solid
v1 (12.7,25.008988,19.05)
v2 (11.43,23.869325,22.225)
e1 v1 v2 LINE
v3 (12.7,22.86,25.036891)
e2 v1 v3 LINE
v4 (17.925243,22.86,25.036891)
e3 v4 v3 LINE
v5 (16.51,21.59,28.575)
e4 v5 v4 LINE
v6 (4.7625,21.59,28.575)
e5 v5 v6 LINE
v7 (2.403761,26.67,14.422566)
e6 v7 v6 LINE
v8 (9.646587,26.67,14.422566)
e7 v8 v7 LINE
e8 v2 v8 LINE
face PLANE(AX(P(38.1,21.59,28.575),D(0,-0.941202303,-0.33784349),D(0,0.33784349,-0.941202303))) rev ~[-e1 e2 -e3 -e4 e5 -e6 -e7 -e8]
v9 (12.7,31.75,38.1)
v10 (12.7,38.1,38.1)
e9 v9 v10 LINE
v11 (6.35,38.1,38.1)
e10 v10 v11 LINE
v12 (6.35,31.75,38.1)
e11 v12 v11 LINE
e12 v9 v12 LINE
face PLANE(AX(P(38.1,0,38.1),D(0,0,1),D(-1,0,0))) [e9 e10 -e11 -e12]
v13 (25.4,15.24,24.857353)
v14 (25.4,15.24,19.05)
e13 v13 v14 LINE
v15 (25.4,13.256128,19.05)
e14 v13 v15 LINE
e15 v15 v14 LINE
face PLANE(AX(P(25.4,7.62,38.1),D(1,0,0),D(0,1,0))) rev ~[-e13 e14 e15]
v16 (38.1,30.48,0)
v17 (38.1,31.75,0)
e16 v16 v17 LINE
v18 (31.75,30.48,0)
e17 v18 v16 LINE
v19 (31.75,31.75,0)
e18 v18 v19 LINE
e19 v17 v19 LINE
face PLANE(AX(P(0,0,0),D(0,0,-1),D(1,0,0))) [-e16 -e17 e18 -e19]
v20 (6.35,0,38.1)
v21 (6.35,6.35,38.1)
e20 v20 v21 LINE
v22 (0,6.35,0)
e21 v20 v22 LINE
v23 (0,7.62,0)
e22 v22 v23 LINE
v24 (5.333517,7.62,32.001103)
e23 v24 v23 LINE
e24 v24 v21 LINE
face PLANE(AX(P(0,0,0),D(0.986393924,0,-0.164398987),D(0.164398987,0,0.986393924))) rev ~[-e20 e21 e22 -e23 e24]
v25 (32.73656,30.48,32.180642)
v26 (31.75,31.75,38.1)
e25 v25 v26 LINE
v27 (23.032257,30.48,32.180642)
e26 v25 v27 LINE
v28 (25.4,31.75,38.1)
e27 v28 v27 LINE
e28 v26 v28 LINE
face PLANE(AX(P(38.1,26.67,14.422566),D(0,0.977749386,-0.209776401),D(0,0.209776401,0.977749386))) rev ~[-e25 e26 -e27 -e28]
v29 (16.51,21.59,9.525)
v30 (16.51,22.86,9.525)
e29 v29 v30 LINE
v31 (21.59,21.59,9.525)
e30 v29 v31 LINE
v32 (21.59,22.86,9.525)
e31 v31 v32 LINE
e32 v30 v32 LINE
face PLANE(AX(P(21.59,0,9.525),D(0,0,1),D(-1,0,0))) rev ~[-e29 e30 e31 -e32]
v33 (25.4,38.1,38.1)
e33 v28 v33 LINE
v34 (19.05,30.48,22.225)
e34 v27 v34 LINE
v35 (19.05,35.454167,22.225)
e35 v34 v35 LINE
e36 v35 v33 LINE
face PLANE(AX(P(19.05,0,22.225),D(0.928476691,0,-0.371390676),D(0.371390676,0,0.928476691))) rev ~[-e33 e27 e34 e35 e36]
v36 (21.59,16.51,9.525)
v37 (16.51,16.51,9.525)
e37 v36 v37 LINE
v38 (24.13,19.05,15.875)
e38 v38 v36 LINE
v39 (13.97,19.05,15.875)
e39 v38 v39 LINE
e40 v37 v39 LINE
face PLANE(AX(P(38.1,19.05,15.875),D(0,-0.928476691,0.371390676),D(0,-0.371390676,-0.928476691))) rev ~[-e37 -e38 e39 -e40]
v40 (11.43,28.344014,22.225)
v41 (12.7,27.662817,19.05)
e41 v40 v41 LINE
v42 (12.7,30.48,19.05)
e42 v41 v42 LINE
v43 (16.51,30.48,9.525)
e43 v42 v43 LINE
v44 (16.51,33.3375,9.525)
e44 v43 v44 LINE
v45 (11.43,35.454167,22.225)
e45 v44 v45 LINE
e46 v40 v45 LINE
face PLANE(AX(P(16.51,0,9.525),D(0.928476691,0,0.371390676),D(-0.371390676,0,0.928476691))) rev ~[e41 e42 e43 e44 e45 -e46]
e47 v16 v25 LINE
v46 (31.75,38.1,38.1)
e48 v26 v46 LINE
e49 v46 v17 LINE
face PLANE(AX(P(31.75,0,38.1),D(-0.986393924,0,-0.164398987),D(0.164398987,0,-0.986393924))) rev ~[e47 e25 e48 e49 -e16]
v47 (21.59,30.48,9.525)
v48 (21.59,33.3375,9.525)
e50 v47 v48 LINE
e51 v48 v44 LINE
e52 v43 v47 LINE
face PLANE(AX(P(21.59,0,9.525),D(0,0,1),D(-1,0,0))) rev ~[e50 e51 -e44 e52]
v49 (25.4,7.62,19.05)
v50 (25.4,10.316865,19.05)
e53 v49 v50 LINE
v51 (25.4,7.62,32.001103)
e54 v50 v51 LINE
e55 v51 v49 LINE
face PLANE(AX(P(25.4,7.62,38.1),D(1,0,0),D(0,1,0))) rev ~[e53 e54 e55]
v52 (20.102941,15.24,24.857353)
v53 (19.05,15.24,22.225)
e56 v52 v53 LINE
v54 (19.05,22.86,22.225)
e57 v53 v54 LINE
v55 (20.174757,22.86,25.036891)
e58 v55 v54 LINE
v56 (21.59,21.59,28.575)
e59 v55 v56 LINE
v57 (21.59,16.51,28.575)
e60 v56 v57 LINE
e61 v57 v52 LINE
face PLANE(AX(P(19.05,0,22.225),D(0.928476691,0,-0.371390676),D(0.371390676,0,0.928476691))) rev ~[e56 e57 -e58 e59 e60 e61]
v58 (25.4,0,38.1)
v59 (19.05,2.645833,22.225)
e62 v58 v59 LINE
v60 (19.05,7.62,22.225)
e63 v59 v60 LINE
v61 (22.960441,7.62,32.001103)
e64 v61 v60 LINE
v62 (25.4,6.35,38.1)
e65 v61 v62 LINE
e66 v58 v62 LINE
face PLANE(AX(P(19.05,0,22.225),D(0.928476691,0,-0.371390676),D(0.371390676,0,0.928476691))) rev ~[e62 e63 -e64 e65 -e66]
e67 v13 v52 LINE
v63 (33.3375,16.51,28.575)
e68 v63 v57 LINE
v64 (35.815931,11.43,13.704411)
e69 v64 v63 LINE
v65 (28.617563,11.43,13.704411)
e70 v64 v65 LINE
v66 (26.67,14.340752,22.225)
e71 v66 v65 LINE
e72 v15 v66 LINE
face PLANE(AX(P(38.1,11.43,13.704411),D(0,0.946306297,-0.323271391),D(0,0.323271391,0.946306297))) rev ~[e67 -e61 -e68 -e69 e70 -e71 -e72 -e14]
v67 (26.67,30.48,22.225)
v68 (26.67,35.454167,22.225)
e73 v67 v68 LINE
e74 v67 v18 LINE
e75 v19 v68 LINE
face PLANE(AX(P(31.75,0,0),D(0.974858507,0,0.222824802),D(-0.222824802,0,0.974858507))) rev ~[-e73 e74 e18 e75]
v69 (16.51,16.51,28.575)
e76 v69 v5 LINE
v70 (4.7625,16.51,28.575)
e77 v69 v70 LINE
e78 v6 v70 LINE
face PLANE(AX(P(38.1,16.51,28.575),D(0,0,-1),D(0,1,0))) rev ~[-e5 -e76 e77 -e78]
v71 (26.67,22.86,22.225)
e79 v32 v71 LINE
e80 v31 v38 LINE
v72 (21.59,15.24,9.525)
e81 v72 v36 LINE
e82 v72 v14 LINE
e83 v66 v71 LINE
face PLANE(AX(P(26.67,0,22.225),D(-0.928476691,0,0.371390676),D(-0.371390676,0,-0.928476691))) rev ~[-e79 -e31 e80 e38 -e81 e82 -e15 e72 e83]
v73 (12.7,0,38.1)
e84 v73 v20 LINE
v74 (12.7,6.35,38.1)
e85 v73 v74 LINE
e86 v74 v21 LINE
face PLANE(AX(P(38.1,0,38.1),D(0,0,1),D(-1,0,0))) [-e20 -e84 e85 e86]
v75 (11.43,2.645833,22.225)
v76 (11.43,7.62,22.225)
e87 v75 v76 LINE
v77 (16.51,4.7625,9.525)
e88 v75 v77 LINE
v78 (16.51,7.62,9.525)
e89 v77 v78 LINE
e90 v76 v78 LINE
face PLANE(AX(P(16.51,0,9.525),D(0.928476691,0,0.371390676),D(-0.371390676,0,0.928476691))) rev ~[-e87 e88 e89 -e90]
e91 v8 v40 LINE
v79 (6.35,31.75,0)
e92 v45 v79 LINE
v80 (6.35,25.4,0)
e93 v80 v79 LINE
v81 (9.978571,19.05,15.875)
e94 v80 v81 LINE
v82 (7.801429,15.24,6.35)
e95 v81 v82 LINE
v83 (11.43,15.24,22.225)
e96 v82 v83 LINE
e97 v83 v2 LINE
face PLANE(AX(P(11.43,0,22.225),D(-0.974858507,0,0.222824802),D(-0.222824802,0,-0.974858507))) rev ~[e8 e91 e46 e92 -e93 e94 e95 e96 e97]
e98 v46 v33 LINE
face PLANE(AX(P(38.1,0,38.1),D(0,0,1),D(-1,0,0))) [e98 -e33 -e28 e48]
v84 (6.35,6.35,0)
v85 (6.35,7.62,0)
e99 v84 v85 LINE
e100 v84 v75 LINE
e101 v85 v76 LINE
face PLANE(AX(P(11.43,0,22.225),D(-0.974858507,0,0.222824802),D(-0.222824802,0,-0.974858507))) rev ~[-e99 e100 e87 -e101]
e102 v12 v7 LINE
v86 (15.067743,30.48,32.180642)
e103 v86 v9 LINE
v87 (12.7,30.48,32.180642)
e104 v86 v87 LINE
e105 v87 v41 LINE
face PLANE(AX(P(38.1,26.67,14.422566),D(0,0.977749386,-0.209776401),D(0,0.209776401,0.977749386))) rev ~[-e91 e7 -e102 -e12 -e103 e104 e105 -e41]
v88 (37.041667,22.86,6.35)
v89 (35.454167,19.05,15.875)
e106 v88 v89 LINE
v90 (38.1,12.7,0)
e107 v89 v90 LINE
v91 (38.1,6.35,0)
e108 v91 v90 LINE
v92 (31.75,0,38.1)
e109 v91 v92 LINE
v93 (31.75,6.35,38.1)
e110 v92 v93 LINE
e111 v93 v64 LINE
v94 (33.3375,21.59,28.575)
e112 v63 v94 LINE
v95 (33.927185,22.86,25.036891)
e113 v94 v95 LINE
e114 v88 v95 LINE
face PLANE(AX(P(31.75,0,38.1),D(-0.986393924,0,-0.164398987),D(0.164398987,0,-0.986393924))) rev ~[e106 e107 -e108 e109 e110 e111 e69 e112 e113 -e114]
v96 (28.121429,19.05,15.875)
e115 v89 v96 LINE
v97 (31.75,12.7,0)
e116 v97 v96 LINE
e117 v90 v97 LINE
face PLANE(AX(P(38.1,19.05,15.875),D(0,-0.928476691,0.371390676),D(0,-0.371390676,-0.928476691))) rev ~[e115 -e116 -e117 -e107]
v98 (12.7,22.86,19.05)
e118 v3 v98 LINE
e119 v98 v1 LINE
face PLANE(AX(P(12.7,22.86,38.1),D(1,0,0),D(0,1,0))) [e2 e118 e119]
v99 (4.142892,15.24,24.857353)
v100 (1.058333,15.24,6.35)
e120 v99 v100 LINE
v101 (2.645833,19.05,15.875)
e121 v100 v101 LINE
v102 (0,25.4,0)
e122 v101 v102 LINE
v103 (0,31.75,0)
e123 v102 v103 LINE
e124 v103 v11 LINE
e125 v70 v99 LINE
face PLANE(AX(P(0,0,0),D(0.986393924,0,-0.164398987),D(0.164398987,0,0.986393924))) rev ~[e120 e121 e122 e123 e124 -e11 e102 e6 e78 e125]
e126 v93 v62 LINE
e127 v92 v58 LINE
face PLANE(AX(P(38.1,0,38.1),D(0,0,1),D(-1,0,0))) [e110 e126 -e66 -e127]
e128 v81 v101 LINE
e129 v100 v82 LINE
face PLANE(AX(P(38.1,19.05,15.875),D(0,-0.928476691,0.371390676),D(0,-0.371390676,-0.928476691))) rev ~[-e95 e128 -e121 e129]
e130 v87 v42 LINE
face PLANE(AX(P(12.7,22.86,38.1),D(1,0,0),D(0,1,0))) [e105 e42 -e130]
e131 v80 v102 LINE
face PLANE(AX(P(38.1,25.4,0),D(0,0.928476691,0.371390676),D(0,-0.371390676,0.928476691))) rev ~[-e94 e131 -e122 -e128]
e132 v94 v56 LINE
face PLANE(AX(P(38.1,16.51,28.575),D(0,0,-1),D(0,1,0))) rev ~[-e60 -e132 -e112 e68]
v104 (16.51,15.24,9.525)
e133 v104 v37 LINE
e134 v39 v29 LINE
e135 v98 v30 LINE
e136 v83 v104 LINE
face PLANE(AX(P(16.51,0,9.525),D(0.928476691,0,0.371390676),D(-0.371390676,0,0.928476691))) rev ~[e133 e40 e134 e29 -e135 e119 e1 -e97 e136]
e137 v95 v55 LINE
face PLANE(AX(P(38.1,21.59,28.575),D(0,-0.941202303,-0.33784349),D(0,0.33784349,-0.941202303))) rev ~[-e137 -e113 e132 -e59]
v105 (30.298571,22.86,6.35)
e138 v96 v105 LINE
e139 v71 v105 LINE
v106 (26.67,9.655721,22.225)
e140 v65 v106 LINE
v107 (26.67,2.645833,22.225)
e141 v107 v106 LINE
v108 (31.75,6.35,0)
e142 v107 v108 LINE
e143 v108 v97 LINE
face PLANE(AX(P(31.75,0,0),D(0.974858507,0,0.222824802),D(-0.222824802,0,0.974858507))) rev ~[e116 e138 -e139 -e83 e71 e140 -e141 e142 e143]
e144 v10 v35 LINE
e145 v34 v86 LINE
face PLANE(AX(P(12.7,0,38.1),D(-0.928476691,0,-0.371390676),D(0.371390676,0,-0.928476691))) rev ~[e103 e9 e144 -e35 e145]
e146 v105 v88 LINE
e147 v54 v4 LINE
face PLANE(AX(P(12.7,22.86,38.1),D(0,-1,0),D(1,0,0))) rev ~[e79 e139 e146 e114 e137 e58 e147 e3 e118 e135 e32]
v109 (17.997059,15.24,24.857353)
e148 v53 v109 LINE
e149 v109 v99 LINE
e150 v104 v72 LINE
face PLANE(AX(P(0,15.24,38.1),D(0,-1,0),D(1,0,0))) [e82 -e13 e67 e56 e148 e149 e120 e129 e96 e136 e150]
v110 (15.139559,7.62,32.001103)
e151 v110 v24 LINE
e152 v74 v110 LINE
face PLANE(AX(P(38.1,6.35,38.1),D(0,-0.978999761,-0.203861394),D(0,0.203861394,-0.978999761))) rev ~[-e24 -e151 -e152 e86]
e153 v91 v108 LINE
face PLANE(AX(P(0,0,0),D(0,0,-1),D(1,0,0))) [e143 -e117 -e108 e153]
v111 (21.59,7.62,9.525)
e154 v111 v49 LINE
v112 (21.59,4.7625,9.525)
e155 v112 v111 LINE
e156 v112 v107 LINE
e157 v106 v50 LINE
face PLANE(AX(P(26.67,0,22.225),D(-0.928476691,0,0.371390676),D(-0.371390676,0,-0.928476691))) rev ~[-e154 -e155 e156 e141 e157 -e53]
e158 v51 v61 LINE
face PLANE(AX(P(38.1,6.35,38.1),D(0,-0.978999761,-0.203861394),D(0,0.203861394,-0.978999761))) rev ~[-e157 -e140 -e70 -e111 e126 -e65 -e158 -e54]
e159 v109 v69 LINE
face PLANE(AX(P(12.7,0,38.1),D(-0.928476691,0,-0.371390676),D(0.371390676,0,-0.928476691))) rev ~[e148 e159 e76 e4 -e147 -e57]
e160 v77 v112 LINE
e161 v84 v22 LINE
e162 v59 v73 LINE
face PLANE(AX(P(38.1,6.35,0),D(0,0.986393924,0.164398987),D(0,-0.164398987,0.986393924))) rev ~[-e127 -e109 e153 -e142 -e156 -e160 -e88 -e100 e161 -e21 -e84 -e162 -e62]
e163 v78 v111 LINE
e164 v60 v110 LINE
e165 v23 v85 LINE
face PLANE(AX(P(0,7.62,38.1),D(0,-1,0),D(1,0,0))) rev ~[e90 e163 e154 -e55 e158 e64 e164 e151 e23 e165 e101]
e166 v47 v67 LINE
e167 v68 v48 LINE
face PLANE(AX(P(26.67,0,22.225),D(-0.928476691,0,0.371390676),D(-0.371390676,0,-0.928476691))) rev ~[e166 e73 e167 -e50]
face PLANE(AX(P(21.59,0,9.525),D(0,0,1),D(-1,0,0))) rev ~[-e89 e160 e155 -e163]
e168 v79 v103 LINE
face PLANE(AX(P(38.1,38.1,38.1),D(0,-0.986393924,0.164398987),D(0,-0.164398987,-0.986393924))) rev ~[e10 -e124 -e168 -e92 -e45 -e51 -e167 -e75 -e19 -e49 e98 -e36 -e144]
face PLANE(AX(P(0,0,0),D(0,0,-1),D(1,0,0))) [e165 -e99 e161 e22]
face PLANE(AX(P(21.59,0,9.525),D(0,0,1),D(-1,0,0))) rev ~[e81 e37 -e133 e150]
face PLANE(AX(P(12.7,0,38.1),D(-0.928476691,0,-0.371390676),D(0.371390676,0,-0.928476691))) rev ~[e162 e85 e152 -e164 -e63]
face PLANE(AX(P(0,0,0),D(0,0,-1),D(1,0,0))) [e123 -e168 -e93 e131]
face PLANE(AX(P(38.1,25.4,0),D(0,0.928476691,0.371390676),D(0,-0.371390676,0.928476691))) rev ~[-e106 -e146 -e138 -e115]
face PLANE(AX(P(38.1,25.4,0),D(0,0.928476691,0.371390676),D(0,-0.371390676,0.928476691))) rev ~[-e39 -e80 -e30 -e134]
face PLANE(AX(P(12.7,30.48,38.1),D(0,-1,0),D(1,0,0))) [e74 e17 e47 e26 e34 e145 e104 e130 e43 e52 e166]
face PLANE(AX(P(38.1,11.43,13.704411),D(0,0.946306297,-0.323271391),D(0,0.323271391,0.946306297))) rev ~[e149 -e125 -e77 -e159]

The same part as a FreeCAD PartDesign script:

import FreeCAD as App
import Part
import Sketcher

V = App.Vector
Q = App.Units.Quantity

doc = App.newDocument("Part")
body = doc.addObject("PartDesign::Body", "Body")

sketch1 = body.newObject("Sketcher::SketchObject", "Sketch")
sketch1.AttachmentSupport = (doc.getObject("XZ_Plane"), [""])
sketch1.MapMode = "FlatFace"
sketch1.addGeometry([
    Part.LineSegment(V(0, 0, 0), V(38.1, 0, 0)),
    Part.LineSegment(V(38.1, 0, 0), V(38.1, 38.1, 0)),
    Part.LineSegment(V(38.1, 38.1, 0), V(0, 38.1, 0)),
    Part.LineSegment(V(0, 38.1, 0), V(0, 0, 0)),
], False)
sketch1.addConstraint([
    Sketcher.Constraint("Coincident", 0, 2, 1, 1),
    Sketcher.Constraint("Coincident", 1, 2, 2, 1),
    Sketcher.Constraint("Coincident", 2, 2, 3, 1),
    Sketcher.Constraint("Coincident", 3, 2, 0, 1),
    Sketcher.Constraint("Horizontal", 0),
    Sketcher.Constraint("Vertical", 1),
    Sketcher.Constraint("Horizontal", 2),
    Sketcher.Constraint("Vertical", 3),
    Sketcher.Constraint("Coincident", 3, 2, -1, 1),
    Sketcher.Constraint("Equal", 2, 1),
    Sketcher.Constraint("DistanceX", 0, 1, 0, 2, Q("1.5 in")),
])
pad1 = body.newObject("PartDesign::Pad", "Pad")
pad1.Profile = sketch1
pad1.Length = Q("1.5 in")
pad1.Reversed = True

sketch2 = body.newObject("Sketcher::SketchObject", "Sketch001")
sketch2.AttachmentSupport = (doc.getObject("YZ_Plane"), [""])
sketch2.MapMode = "FlatFace"
sketch2.AttachmentOffset = App.Placement(V(0, 0, 1.5 * 25.4), App.Rotation())
sketch2.addGeometry([
    Part.LineSegment(V(31.75, 38.1, 0), V(6.35, 38.1, 0)),
    Part.LineSegment(V(6.35, 38.1, 0), V(11.43, 13.704411, 0)),
    Part.LineSegment(V(11.43, 13.704411, 0), V(16.51, 28.575, 0)),
    Part.LineSegment(V(16.51, 28.575, 0), V(21.59, 28.575, 0)),
    Part.LineSegment(V(21.59, 28.575, 0), V(26.67, 14.422566, 0)),
    Part.LineSegment(V(26.67, 14.422566, 0), V(31.75, 38.1, 0)),
    Part.LineSegment(V(0, 38.1, 0), V(0, 0, 0)),
    Part.LineSegment(V(0, 0, 0), V(6.35, 0, 0)),
    Part.LineSegment(V(6.35, 0, 0), V(0, 38.1, 0)),
    Part.LineSegment(V(19.05, 15.875, 0), V(12.7, 0, 0)),
    Part.LineSegment(V(12.7, 0, 0), V(25.4, 0, 0)),
    Part.LineSegment(V(25.4, 0, 0), V(19.05, 15.875, 0)),
    Part.LineSegment(V(38.1, 0, 0), V(38.1, 38.1, 0)),
    Part.LineSegment(V(38.1, 38.1, 0), V(31.75, 0, 0)),
    Part.LineSegment(V(31.75, 0, 0), V(38.1, 0, 0)),
], False)
sketch2.addConstraint([
    Sketcher.Constraint("Coincident", 0, 2, 1, 1),
    Sketcher.Constraint("Coincident", 1, 2, 2, 1),
    Sketcher.Constraint("Coincident", 2, 2, 3, 1),
    Sketcher.Constraint("Coincident", 3, 2, 4, 1),
    Sketcher.Constraint("Coincident", 4, 2, 5, 1),
    Sketcher.Constraint("Coincident", 5, 2, 0, 1),
    Sketcher.Constraint("Coincident", 6, 2, 7, 1),
    Sketcher.Constraint("Coincident", 7, 2, 8, 1),
    Sketcher.Constraint("Coincident", 8, 2, 6, 1),
    Sketcher.Constraint("Coincident", 9, 2, 10, 1),
    Sketcher.Constraint("Coincident", 10, 2, 11, 1),
    Sketcher.Constraint("Coincident", 11, 2, 9, 1),
    Sketcher.Constraint("Coincident", 12, 2, 13, 1),
    Sketcher.Constraint("Coincident", 13, 2, 14, 1),
    Sketcher.Constraint("Coincident", 14, 2, 12, 1),
    Sketcher.Constraint("Horizontal", 0),
    Sketcher.Constraint("Horizontal", 3),
    Sketcher.Constraint("Vertical", 6),
    Sketcher.Constraint("Horizontal", 7),
    Sketcher.Constraint("Horizontal", 10),
    Sketcher.Constraint("Vertical", 12),
    Sketcher.Constraint("Horizontal", 14),
    Sketcher.Constraint("Coincident", 6, 2, -1, 1),
    Sketcher.Constraint("PointOnObject", 9, 2, -1),
    Sketcher.Constraint("PointOnObject", 13, 2, -1),
    Sketcher.Constraint("Horizontal", 5, 2, 8, 2),
    Sketcher.Constraint("Horizontal", 8, 2, 12, 2),
    Sketcher.Constraint("Vertical", 0, 2, 7, 2),
    Sketcher.Constraint("Vertical", 5, 2, 13, 2),
    Sketcher.Constraint("Equal", 7, 14),
    Sketcher.Constraint("Equal", 9, 11),
    Sketcher.Constraint("DistanceX", 0, 2, 0, 1, Q("1 in")),
    Sketcher.Constraint("DistanceX", 3, 1, 3, 2, Q("0.2 in")),
    Sketcher.Constraint("DistanceX", 10, 1, 10, 2, Q("0.5 in")),
    Sketcher.Constraint("DistanceY", 6, 2, 6, 1, Q("1.5 in")),
    Sketcher.Constraint("DistanceX", -1, 1, 10, 2, Q("1 in")),
    Sketcher.Constraint("DistanceX", 9, 2, 14, 2, Q("1 in")),
    Sketcher.Constraint("DistanceX", 0, 2, 1, 2, Q("0.2 in")),
    Sketcher.Constraint("DistanceX", 0, 2, 2, 2, Q("0.4 in")),
    Sketcher.Constraint("DistanceX", 3, 2, 4, 2, Q("0.2 in")),
    Sketcher.Constraint("DistanceY", 11, 2, 2, 2, Q("0.5 in")),
    Sketcher.Constraint("DistanceY", -1, 1, 2, 2, Q("1.125 in")),
    Sketcher.Constraint("Distance", 1, 24.918892),
    Sketcher.Constraint("Distance", 4, 15.036548),
])
pocket1 = body.newObject("PartDesign::Pocket", "Pocket")
pocket1.Profile = sketch2
pocket1.Length = Q("1.5 in")

sketch3 = body.newObject("Sketcher::SketchObject", "Sketch002")
sketch3.AttachmentSupport = (doc.getObject("XZ_Plane"), [""])
sketch3.MapMode = "FlatFace"
sketch3.addGeometry([
    Part.LineSegment(V(0, 38.1, 0), V(0, 0, 0)),
    Part.LineSegment(V(0, 0, 0), V(6.35, 38.1, 0)),
    Part.LineSegment(V(6.35, 38.1, 0), V(0, 38.1, 0)),
    Part.LineSegment(V(25.4, 38.1, 0), V(12.7, 38.1, 0)),
    Part.LineSegment(V(12.7, 38.1, 0), V(19.05, 22.225, 0)),
    Part.LineSegment(V(19.05, 22.225, 0), V(25.4, 38.1, 0)),
    Part.LineSegment(V(31.75, 38.1, 0), V(38.1, 0, 0)),
    Part.LineSegment(V(38.1, 0, 0), V(38.1, 38.1, 0)),
    Part.LineSegment(V(38.1, 38.1, 0), V(31.75, 38.1, 0)),
    Part.LineSegment(V(11.43, 22.225, 0), V(6.35, 0, 0)),
    Part.LineSegment(V(6.35, 0, 0), V(31.75, 0, 0)),
    Part.LineSegment(V(31.75, 0, 0), V(26.67, 22.225, 0)),
    Part.LineSegment(V(26.67, 22.225, 0), V(21.59, 9.525, 0)),
    Part.LineSegment(V(21.59, 9.525, 0), V(16.51, 9.525, 0)),
    Part.LineSegment(V(16.51, 9.525, 0), V(11.43, 22.225, 0)),
], False)
sketch3.addConstraint([
    Sketcher.Constraint("Coincident", 0, 2, 1, 1),
    Sketcher.Constraint("Coincident", 1, 2, 2, 1),
    Sketcher.Constraint("Coincident", 2, 2, 0, 1),
    Sketcher.Constraint("Coincident", 3, 2, 4, 1),
    Sketcher.Constraint("Coincident", 4, 2, 5, 1),
    Sketcher.Constraint("Coincident", 5, 2, 3, 1),
    Sketcher.Constraint("Coincident", 6, 2, 7, 1),
    Sketcher.Constraint("Coincident", 7, 2, 8, 1),
    Sketcher.Constraint("Coincident", 8, 2, 6, 1),
    Sketcher.Constraint("Coincident", 9, 2, 10, 1),
    Sketcher.Constraint("Coincident", 10, 2, 11, 1),
    Sketcher.Constraint("Coincident", 11, 2, 12, 1),
    Sketcher.Constraint("Coincident", 12, 2, 13, 1),
    Sketcher.Constraint("Coincident", 13, 2, 14, 1),
    Sketcher.Constraint("Coincident", 14, 2, 9, 1),
    Sketcher.Constraint("Vertical", 0),
    Sketcher.Constraint("Horizontal", 2),
    Sketcher.Constraint("Horizontal", 3),
    Sketcher.Constraint("Vertical", 7),
    Sketcher.Constraint("Horizontal", 8),
    Sketcher.Constraint("Horizontal", 10),
    Sketcher.Constraint("Horizontal", 13),
    Sketcher.Constraint("Coincident", 0, 2, -1, 1),
    Sketcher.Constraint("PointOnObject", 6, 2, -1),
    Sketcher.Constraint("PointOnObject", 9, 2, -1),
    Sketcher.Constraint("Parallel", 5, 12),
    Sketcher.Constraint("Parallel", 4, 14),
    Sketcher.Constraint("Horizontal", 2, 2, 3, 2),
    Sketcher.Constraint("Horizontal", 5, 2, 7, 2),
    Sketcher.Constraint("Horizontal", 4, 2, 11, 2),
    Sketcher.Constraint("Horizontal", 11, 2, 14, 2),
    Sketcher.Constraint("Vertical", 1, 2, 9, 2),
    Sketcher.Constraint("Vertical", 8, 2, 10, 2),
    Sketcher.Constraint("Equal", 2, 8),
    Sketcher.Constraint("Equal", 4, 5),
    Sketcher.Constraint("Equal", 9, 11),
    Sketcher.Constraint("DistanceX", 10, 1, 10, 2, Q("1 in")),
    Sketcher.Constraint("DistanceX", 3, 2, 3, 1, Q("0.5 in")),
    Sketcher.Constraint("DistanceX", 13, 2, 13, 1, Q("0.2 in")),
    Sketcher.Constraint("DistanceY", 0, 2, 0, 1, Q("1.5 in")),
    Sketcher.Constraint("DistanceX", -1, 1, 5, 2, Q("1 in")),
    Sketcher.Constraint("DistanceX", 3, 2, 6, 2, Q("1 in")),
    Sketcher.Constraint("DistanceX", 4, 2, 11, 2, Q("0.3 in")),
    Sketcher.Constraint("DistanceY", 12, 2, 4, 2, Q("0.5 in")),
])
pocket2 = body.newObject("PartDesign::Pocket", "Pocket001")
pocket2.Profile = sketch3
pocket2.Length = Q("1.5 in")

sketch4 = body.newObject("Sketcher::SketchObject", "Sketch003")
sketch4.AttachmentSupport = (doc.getObject("XY_Plane"), [""])
sketch4.MapMode = "FlatFace"
sketch4.AttachmentOffset = App.Placement(V(0, 0, 1.5 * 25.4), App.Rotation())
sketch4.addGeometry([
    Part.LineSegment(V(12.7, 30.48, 0), V(12.7, 22.86, 0)),
    Part.LineSegment(V(12.7, 22.86, 0), V(38.1, 22.86, 0)),
    Part.LineSegment(V(38.1, 22.86, 0), V(38.1, 30.48, 0)),
    Part.LineSegment(V(38.1, 30.48, 0), V(12.7, 30.48, 0)),
    Part.LineSegment(V(0, 15.24, 0), V(0, 7.62, 0)),
    Part.LineSegment(V(0, 7.62, 0), V(25.4, 7.62, 0)),
    Part.LineSegment(V(25.4, 7.62, 0), V(25.4, 15.24, 0)),
    Part.LineSegment(V(25.4, 15.24, 0), V(0, 15.24, 0)),
], False)
sketch4.addConstraint([
    Sketcher.Constraint("Coincident", 0, 2, 1, 1),
    Sketcher.Constraint("Coincident", 1, 2, 2, 1),
    Sketcher.Constraint("Coincident", 2, 2, 3, 1),
    Sketcher.Constraint("Coincident", 3, 2, 0, 1),
    Sketcher.Constraint("Coincident", 4, 2, 5, 1),
    Sketcher.Constraint("Coincident", 5, 2, 6, 1),
    Sketcher.Constraint("Coincident", 6, 2, 7, 1),
    Sketcher.Constraint("Coincident", 7, 2, 4, 1),
    Sketcher.Constraint("Vertical", 0),
    Sketcher.Constraint("Horizontal", 1),
    Sketcher.Constraint("Vertical", 2),
    Sketcher.Constraint("Horizontal", 3),
    Sketcher.Constraint("Vertical", 4),
    Sketcher.Constraint("Horizontal", 5),
    Sketcher.Constraint("Vertical", 6),
    Sketcher.Constraint("Horizontal", 7),
    Sketcher.Constraint("PointOnObject", 4, 2, -2),
    Sketcher.Constraint("Equal", 3, 5),
    Sketcher.Constraint("Equal", 2, 4),
    Sketcher.Constraint("DistanceX", 1, 1, 1, 2, Q("1 in")),
    Sketcher.Constraint("DistanceY", 0, 2, 0, 1, Q("0.3 in")),
    Sketcher.Constraint("DistanceX", -1, 1, 0, 2, Q("0.5 in")),
    Sketcher.Constraint("DistanceY", -1, 1, 0, 2, Q("0.9 in")),
    Sketcher.Constraint("DistanceY", -1, 1, 4, 2, Q("0.3 in")),
])
pocket3 = body.newObject("PartDesign::Pocket", "Pocket002")
pocket3.Profile = sketch4
pocket3.Length = Q("1.5 in")

doc.recompute()
